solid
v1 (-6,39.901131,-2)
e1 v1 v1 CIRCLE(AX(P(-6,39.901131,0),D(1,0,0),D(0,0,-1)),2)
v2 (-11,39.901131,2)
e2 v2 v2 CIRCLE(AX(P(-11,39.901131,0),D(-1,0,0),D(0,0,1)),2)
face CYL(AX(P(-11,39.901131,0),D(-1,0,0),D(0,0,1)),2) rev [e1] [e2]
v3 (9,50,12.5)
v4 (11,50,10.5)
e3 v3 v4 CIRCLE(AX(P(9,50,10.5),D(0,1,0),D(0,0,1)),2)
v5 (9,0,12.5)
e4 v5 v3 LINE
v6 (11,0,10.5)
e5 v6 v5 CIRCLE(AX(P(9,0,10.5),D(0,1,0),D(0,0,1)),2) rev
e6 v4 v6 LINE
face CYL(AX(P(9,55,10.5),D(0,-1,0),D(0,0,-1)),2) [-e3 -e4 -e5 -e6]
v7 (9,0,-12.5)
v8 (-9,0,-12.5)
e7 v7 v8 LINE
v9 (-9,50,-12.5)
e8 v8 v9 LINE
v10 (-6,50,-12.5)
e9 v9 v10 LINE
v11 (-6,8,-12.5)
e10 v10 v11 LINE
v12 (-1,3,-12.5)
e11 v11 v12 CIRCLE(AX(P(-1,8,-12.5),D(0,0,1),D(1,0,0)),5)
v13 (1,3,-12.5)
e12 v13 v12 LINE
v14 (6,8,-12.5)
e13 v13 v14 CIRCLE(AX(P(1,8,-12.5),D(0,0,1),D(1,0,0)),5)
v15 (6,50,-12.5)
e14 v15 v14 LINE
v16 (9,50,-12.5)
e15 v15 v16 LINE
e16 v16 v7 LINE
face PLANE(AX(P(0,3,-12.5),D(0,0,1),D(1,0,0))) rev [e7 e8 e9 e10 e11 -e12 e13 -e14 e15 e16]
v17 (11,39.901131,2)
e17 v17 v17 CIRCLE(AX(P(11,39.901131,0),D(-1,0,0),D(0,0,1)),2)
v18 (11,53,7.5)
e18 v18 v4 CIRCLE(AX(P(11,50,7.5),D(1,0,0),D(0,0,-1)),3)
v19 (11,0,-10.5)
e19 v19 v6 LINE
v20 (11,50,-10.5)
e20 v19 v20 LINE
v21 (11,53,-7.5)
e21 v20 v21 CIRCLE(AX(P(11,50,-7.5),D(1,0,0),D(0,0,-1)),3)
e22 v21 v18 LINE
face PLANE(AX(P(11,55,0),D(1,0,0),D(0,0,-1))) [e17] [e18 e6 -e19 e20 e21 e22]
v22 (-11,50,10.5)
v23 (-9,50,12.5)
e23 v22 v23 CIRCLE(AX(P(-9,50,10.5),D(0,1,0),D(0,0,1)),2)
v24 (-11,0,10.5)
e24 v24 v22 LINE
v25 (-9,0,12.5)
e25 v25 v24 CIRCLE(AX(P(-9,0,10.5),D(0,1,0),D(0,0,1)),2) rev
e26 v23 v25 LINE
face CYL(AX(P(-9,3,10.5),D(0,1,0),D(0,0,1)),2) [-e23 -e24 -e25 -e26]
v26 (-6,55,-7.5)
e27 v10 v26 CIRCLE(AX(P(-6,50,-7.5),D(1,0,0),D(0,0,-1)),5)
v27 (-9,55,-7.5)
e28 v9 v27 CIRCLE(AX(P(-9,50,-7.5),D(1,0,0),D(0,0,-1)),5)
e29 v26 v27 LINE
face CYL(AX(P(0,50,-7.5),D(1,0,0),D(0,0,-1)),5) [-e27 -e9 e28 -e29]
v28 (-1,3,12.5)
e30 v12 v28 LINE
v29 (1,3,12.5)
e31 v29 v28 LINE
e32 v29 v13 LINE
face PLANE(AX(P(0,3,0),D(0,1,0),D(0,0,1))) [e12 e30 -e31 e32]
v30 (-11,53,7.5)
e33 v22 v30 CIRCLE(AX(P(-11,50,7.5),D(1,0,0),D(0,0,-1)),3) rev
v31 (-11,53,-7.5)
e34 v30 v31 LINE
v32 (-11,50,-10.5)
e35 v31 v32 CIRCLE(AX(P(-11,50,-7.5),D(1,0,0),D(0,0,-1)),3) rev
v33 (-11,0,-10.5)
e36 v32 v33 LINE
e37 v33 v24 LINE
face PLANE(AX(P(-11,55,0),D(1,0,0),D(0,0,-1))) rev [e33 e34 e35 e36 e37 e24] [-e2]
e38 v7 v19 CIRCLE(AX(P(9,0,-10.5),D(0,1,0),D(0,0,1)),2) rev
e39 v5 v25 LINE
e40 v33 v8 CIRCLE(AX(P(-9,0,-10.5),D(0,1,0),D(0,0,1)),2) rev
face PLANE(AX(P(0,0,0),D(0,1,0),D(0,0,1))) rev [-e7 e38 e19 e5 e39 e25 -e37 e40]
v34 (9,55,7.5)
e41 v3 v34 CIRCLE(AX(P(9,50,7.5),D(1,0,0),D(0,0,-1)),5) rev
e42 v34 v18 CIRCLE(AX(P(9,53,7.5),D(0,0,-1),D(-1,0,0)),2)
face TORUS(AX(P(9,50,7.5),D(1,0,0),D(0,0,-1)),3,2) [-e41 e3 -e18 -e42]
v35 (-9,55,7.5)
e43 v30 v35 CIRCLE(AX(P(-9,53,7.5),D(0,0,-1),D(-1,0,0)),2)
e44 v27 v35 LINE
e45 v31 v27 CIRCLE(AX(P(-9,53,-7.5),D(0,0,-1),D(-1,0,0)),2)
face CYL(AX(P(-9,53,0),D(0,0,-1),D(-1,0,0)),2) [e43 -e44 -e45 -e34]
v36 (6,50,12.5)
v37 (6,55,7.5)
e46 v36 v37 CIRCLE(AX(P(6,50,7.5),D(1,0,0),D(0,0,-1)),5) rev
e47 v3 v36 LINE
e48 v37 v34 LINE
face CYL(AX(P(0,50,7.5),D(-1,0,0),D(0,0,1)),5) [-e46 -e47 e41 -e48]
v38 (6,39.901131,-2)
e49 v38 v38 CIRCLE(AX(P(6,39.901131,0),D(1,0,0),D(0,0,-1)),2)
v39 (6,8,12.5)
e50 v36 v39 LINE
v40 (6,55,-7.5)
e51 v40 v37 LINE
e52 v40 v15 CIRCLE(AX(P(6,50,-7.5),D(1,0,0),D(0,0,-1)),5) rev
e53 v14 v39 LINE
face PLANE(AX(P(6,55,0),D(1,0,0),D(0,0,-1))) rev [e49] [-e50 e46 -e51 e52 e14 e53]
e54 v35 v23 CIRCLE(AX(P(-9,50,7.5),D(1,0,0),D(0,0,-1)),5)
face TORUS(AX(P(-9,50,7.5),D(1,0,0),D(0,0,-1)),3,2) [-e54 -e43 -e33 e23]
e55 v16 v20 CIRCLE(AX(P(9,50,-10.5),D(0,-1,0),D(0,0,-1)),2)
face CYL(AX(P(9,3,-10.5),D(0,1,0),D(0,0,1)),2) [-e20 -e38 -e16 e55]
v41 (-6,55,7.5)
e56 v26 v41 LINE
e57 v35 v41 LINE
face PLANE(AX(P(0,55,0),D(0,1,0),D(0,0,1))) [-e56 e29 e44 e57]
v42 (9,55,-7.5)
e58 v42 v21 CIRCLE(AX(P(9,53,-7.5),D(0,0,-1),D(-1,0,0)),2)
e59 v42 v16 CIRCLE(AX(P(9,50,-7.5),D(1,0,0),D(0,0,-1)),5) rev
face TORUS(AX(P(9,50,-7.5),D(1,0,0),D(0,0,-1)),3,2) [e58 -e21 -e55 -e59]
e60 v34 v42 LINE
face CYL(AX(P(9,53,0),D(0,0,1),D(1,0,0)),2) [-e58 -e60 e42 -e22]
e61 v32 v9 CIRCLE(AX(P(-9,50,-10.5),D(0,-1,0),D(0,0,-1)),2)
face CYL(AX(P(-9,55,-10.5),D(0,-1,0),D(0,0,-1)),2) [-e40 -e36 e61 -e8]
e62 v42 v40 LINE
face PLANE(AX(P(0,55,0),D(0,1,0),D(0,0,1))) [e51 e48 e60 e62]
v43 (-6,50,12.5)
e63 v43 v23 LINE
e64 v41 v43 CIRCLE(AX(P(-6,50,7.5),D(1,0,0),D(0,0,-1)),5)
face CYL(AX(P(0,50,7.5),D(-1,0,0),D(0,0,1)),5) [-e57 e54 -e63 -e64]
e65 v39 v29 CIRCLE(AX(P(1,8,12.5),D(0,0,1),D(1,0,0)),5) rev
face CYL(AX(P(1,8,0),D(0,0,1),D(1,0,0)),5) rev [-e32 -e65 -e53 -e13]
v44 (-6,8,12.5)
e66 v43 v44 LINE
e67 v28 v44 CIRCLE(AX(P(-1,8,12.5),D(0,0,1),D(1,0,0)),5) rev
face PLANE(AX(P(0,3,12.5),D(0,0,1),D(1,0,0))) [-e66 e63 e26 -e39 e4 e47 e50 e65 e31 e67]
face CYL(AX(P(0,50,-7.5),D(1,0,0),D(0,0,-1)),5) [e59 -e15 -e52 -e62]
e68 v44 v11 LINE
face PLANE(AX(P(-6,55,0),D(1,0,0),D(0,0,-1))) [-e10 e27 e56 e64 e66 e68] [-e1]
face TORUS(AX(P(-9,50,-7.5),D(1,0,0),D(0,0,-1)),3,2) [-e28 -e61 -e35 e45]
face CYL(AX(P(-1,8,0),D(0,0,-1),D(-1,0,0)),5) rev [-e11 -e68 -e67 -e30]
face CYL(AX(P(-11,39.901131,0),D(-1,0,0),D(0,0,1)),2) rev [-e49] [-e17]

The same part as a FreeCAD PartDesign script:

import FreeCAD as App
import Part
import Sketcher
from FreeCAD import Vector
Q = App.Units.Quantity


def edges_at(feature, points):
    """Names of the edges that pass closest to the given points."""
    edges = feature.Shape.Edges
    near = lambda p: min(range(len(edges)), key=lambda i: edges[i].distToShape(Part.Vertex(*p))[0])
    return sorted({f"Edge{near(p) + 1}" for p in points})

doc = App.newDocument("Part")
body = doc.addObject("PartDesign::Body", "Body")

# Sketch on XZ plane
sketch1 = doc.addObject("Sketcher::SketchObject", "Sketch")
body.addObject(sketch1)
sketch1.AttachmentSupport = (doc.XZ_Plane, [""])
sketch1.MapMode = "FlatFace"
sketch1.addGeometry(Part.LineSegment(Vector(-6, -12, 0), Vector(-6, 12, 0)), False)
sketch1.addGeometry(Part.LineSegment(Vector(-6, 12, 0), Vector(6, 12, 0)), False)
sketch1.addGeometry(Part.LineSegment(Vector(6, 12, 0), Vector(6, -12, 0)), False)
sketch1.addGeometry(Part.LineSegment(Vector(6, -12, 0), Vector(-6, -12, 0)), False)
sketch1.addConstraint(Sketcher.Constraint("Coincident", 0, 2, 1, 1))
sketch1.addConstraint(Sketcher.Constraint("Coincident", 1, 2, 2, 1))
sketch1.addConstraint(Sketcher.Constraint("Coincident", 2, 2, 3, 1))
sketch1.addConstraint(Sketcher.Constraint("Coincident", 3, 2, 0, 1))
sketch1.addConstraint(Sketcher.Constraint("Vertical", 0))
sketch1.addConstraint(Sketcher.Constraint("Horizontal", 1))
sketch1.addConstraint(Sketcher.Constraint("Vertical", 2))
sketch1.addConstraint(Sketcher.Constraint("Horizontal", 3))
sketch1.addConstraint(Sketcher.Constraint("Symmetric", 0, 2, 2, 2, -1, 1))
sketch1.addConstraint(Sketcher.Constraint("DistanceX", 1, 1, 1, 2, Q("12 mm")))
sketch1.addConstraint(Sketcher.Constraint("DistanceY", 0, 1, 0, 2, Q("25 mm")))
pad1 = doc.addObject("PartDesign::Pad", "Pad")
body.addObject(pad1)
pad1.Profile = sketch1
pad1.Length = 3
pad1.Reversed = True

# Sketch on XZ plane
sketch2 = doc.addObject("Sketcher::SketchObject", "Sketch001")
body.addObject(sketch2)
sketch2.AttachmentSupport = (doc.XZ_Plane, [""])
sketch2.MapMode = "FlatFace"
sketch2.addGeometry(Part.LineSegment(Vector(-11, -12, 0), Vector(-11, 12, 0)), False)
sketch2.addGeometry(Part.LineSegment(Vector(-11, 12, 0), Vector(-6, 12, 0)), False)
sketch2.addGeometry(Part.LineSegment(Vector(-6, 12, 0), Vector(-6, -12, 0)), False)
sketch2.addGeometry(Part.LineSegment(Vector(-6, -12, 0), Vector(-11, -12, 0)), False)
sketch2.addGeometry(Part.LineSegment(Vector(6, -12, 0), Vector(6, 12, 0)), False)
sketch2.addGeometry(Part.LineSegment(Vector(6, 12, 0), Vector(11, 12, 0)), False)
sketch2.addGeometry(Part.LineSegment(Vector(11, 12, 0), Vector(11, -12, 0)), False)
sketch2.addGeometry(Part.LineSegment(Vector(11, -12, 0), Vector(6, -12, 0)), False)
sketch2.addConstraint(Sketcher.Constraint("Coincident", 0, 2, 1, 1))
sketch2.addConstraint(Sketcher.Constraint("Coincident", 1, 2, 2, 1))
sketch2.addConstraint(Sketcher.Constraint("Coincident", 2, 2, 3, 1))
sketch2.addConstraint(Sketcher.Constraint("Coincident", 3, 2, 0, 1))
sketch2.addConstraint(Sketcher.Constraint("Coincident", 4, 2, 5, 1))
sketch2.addConstraint(Sketcher.Constraint("Coincident", 5, 2, 6, 1))
sketch2.addConstraint(Sketcher.Constraint("Coincident", 6, 2, 7, 1))
sketch2.addConstraint(Sketcher.Constraint("Coincident", 7, 2, 4, 1))
sketch2.addConstraint(Sketcher.Constraint("Vertical", 0))
sketch2.addConstraint(Sketcher.Constraint("Horizontal", 1))
sketch2.addConstraint(Sketcher.Constraint("Vertical", 2))
sketch2.addConstraint(Sketcher.Constraint("Horizontal", 3))
sketch2.addConstraint(Sketcher.Constraint("Vertical", 4))
sketch2.addConstraint(Sketcher.Constraint("Horizontal", 5))
sketch2.addConstraint(Sketcher.Constraint("Vertical", 6))
sketch2.addConstraint(Sketcher.Constraint("Horizontal", 7))
sketch2.addConstraint(Sketcher.Constraint("Symmetric", 2, 2, 4, 2, -1, 1))
sketch2.addConstraint(Sketcher.Constraint("Symmetric", 0, 2, 6, 2, -1, 1))
sketch2.addConstraint(Sketcher.Constraint("Horizontal", 1, 2, 4, 2))
sketch2.addConstraint(Sketcher.Constraint("DistanceX", 1, 1, 1, 2, Q("5 mm")))
sketch2.addConstraint(Sketcher.Constraint("DistanceY", 0, 1, 0, 2, Q("25 mm")))
sketch2.addConstraint(Sketcher.Constraint("DistanceX", 0, 2, -1, 1, Q("11 mm")))
pad2 = doc.addObject("PartDesign::Pad", "Pad001")
body.addObject(pad2)
pad2.Profile = sketch2
pad2.Length = 55
pad2.Reversed = True
doc.recompute()

fillet = doc.addObject("PartDesign::Fillet", "Fillet")
body.addObject(fillet)
fillet.Base = (pad2, edges_at(pad2, [
    (-6, 3, 0),
    (-8.5, 55, 12.5),
    (-8.5, 55, -12.5),
    (8.5, 55, 12.5),
    (8.5, 55, -12.5),
    (6, 3, 0),
]))
fillet.Radius = 5
doc.recompute()

fillet2 = doc.addObject("PartDesign::Fillet", "Fillet001")
body.addObject(fillet2)
fillet2.Base = (fillet, edges_at(fillet, [
    (11, 55, 0),
    (-11, 25, -12.5),
    (11, 25, -12.5),
    (11, 25, 12.5),
    (11, 53.536, 11.036),
    (11, 53.536, -11.036),
    (-11, 55, 0),
    (-11, 25, 12.5),
    (-11, 53.536, 11.036),
    (-11, 53.536, -11.036),
]))
fillet2.Radius = 2

# Sketch on YZ plane
sketch3 = doc.addObject("Sketcher::SketchObject", "Sketch002")
body.addObject(sketch3)
sketch3.AttachmentSupport = (doc.YZ_Plane, [""])
sketch3.MapMode = "FlatFace"
sketch3.AttachmentOffset = App.Placement(Vector(0, 0, -11), App.Rotation())
sketch3.addGeometry(Part.Circle(Vector(39.9, 0, 0), Vector(0, 0, 1), 2), False)
sketch3.addConstraint(Sketcher.Constraint("PointOnObject", 0, 3, -1))
sketch3.addConstraint(Sketcher.Constraint("Diameter", 0, Q("4 mm")))
sketch3.addConstraint(Sketcher.Constraint("DistanceX", -1, 1, 0, 3, Q("39.901131 mm")))
doc.recompute()
hole = doc.addObject("PartDesign::Hole", "Hole")
body.addObject(hole)
hole.Profile = sketch3
hole.ThreadType = "None"
hole.Diameter = 4
hole.DepthType = "ThroughAll"
hole.Reversed = True

doc.recompute()
